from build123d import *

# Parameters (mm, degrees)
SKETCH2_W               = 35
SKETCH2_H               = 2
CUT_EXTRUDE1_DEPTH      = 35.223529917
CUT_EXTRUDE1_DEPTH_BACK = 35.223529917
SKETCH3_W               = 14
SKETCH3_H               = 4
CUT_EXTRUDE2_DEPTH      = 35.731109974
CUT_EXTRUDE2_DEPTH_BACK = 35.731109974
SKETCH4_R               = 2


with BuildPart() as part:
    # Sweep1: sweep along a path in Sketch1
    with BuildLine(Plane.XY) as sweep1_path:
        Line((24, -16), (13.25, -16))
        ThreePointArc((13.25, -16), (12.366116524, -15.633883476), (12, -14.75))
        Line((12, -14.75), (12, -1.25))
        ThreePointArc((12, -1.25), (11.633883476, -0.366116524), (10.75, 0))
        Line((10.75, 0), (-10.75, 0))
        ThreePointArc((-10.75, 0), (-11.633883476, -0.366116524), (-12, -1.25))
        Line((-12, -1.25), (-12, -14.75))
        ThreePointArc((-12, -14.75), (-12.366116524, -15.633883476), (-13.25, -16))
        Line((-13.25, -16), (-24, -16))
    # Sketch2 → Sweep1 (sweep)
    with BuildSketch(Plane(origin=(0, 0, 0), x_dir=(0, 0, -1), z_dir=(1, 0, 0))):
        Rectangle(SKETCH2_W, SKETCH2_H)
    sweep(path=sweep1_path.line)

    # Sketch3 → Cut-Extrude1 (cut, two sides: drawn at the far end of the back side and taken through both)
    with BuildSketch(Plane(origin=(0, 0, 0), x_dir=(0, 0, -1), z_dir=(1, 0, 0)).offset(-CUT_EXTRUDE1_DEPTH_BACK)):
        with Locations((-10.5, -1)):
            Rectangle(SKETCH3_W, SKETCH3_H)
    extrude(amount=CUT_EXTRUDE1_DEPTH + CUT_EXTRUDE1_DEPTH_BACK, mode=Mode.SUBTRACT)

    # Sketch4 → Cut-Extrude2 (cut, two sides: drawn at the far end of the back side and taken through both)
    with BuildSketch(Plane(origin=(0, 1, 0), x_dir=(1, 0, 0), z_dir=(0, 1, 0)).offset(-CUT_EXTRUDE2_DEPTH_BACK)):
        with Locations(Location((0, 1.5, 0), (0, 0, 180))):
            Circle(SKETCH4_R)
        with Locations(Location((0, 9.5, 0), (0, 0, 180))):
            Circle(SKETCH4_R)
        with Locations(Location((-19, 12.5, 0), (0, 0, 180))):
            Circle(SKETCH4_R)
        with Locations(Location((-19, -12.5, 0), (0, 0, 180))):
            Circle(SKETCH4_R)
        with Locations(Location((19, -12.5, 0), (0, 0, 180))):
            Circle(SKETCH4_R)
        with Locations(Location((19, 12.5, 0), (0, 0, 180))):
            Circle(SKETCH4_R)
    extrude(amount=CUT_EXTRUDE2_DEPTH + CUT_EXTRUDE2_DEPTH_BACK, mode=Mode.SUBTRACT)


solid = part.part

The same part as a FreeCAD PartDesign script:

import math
import FreeCAD as App
import Part
import Sketcher
from FreeCAD import Vector
Q = App.Units.Quantity

doc = App.newDocument("Part")
body = doc.addObject("PartDesign::Body", "Body")

sketch1 = body.newObject("Sketcher::SketchObject", "Sketch")
sketch1.AttachmentSupport = (doc.getObject("YZ_Plane"), [""])
sketch1.MapMode = "FlatFace"
sketch1.addGeometry(Part.LineSegment(Vector(1, 17.5, 0), Vector(-1, 17.5, 0)), False)
sketch1.addGeometry(Part.LineSegment(Vector(-1, 17.5, 0), Vector(-1, -17.5, 0)), False)
sketch1.addGeometry(Part.LineSegment(Vector(-1, -17.5, 0), Vector(1, -17.5, 0)), False)
sketch1.addGeometry(Part.LineSegment(Vector(1, -17.5, 0), Vector(1, 17.5, 0)), False)
sketch1.addConstraint(Sketcher.Constraint("Coincident", 0, 2, 1, 1))
sketch1.addConstraint(Sketcher.Constraint("Coincident", 1, 2, 2, 1))
sketch1.addConstraint(Sketcher.Constraint("Coincident", 2, 2, 3, 1))
sketch1.addConstraint(Sketcher.Constraint("Coincident", 3, 2, 0, 1))
sketch1.addConstraint(Sketcher.Constraint("Horizontal", 0))
sketch1.addConstraint(Sketcher.Constraint("Vertical", 1))
sketch1.addConstraint(Sketcher.Constraint("Horizontal", 2))
sketch1.addConstraint(Sketcher.Constraint("Vertical", 3))
sketch1.addConstraint(Sketcher.Constraint("Symmetric", 0, 2, 2, 2, -1, 1))
sketch1.addConstraint(Sketcher.Constraint("DistanceX", 0, 2, 0, 1, Q("2 mm")))
sketch1.addConstraint(Sketcher.Constraint("DistanceY", 1, 2, 1, 1, Q("35 mm")))

sketch2 = body.newObject("Sketcher::SketchObject", "Sketch001")
sketch2.AttachmentSupport = (doc.getObject("XY_Plane"), [""])
sketch2.MapMode = "FlatFace"
sketch2.addGeometry(Part.LineSegment(Vector(24, -16, 0), Vector(13.2, -16, 0)), False)
sketch2.addGeometry(Part.ArcOfCircle(Part.Circle(Vector(13.3, -14.7, 0), Vector(0, 0, 1), 1.3), math.radians(-180), math.radians(-90)), False)
sketch2.addGeometry(Part.LineSegment(Vector(12, -14.8, 0), Vector(12, -1.2, 0)), False)
sketch2.addGeometry(Part.ArcOfCircle(Part.Circle(Vector(10.7, -1.3, 0), Vector(0, 0, 1), 1.3), math.radians(0), math.radians(90)), False)
sketch2.addGeometry(Part.LineSegment(Vector(10.8, 0, 0), Vector(-10.8, 0, 0)), False)
sketch2.addGeometry(Part.ArcOfCircle(Part.Circle(Vector(-10.7, -1.3, 0), Vector(0, 0, 1), 1.3), math.radians(90), math.radians(180)), False)
sketch2.addGeometry(Part.LineSegment(Vector(-12, -1.2, 0), Vector(-12, -14.8, 0)), False)
sketch2.addGeometry(Part.ArcOfCircle(Part.Circle(Vector(-13.3, -14.7, 0), Vector(0, 0, 1), 1.3), math.radians(-90), math.radians(0)), False)
sketch2.addGeometry(Part.LineSegment(Vector(-13.2, -16, 0), Vector(-24, -16, 0)), False)
sketch2.addConstraint(Sketcher.Constraint("Tangent", 0, 2, 1, 2))
sketch2.addConstraint(Sketcher.Constraint("Tangent", 1, 1, 2, 1))
sketch2.addConstraint(Sketcher.Constraint("Tangent", 2, 2, 3, 1))
sketch2.addConstraint(Sketcher.Constraint("Tangent", 3, 2, 4, 1))
sketch2.addConstraint(Sketcher.Constraint("Tangent", 4, 2, 5, 1))
sketch2.addConstraint(Sketcher.Constraint("Tangent", 5, 2, 6, 1))
sketch2.addConstraint(Sketcher.Constraint("Tangent", 6, 2, 7, 2))
sketch2.addConstraint(Sketcher.Constraint("Tangent", 7, 1, 8, 1))
sketch2.addConstraint(Sketcher.Constraint("Horizontal", 0))
sketch2.addConstraint(Sketcher.Constraint("Vertical", 2))
sketch2.addConstraint(Sketcher.Constraint("Horizontal", 4))
sketch2.addConstraint(Sketcher.Constraint("Vertical", 6))
sketch2.addConstraint(Sketcher.Constraint("Horizontal", 8))
sketch2.addConstraint(Sketcher.Constraint("Equal", 1, 3))
sketch2.addConstraint(Sketcher.Constraint("Equal", 3, 5))
sketch2.addConstraint(Sketcher.Constraint("Equal", 5, 7))
sketch2.addConstraint(Sketcher.Constraint("Symmetric", 3, 2, 4, 2, -1, 1))
sketch2.addConstraint(Sketcher.Constraint("Symmetric", 0, 1, 8, 2, -2))
sketch2.addConstraint(Sketcher.Constraint("Radius", 1, Q("1.25 mm")))
sketch2.addConstraint(Sketcher.Constraint("DistanceX", 4, 2, 4, 1, Q("21.5 mm")))
sketch2.addConstraint(Sketcher.Constraint("DistanceY", 2, 1, 2, 2, Q("13.5 mm")))
sketch2.addConstraint(Sketcher.Constraint("DistanceX", -1, 1, 0, 1, Q("24 mm")))
doc.recompute()

additivepipe = body.newObject("PartDesign::AdditivePipe", "AdditivePipe")
additivepipe.Profile = sketch1
additivepipe.Spine = (sketch2, ["Edge1", "Edge2", "Edge3", "Edge4", "Edge5", "Edge6", "Edge7", "Edge8", "Edge9"])

sketch3 = body.newObject("Sketcher::SketchObject", "Sketch002")
sketch3.AttachmentSupport = (doc.getObject("YZ_Plane"), [""])
sketch3.MapMode = "FlatFace"
sketch3.addGeometry(Part.LineSegment(Vector(1, 17.5, 0), Vector(-3, 17.5, 0)), False)
sketch3.addGeometry(Part.LineSegment(Vector(-3, 17.5, 0), Vector(-3, 3.5, 0)), False)
sketch3.addGeometry(Part.LineSegment(Vector(-3, 3.5, 0), Vector(1, 3.5, 0)), False)
sketch3.addGeometry(Part.LineSegment(Vector(1, 3.5, 0), Vector(1, 17.5, 0)), False)
sketch3.addConstraint(Sketcher.Constraint("Coincident", 0, 2, 1, 1))
sketch3.addConstraint(Sketcher.Constraint("Coincident", 1, 2, 2, 1))
sketch3.addConstraint(Sketcher.Constraint("Coincident", 2, 2, 3, 1))
sketch3.addConstraint(Sketcher.Constraint("Coincident", 3, 2, 0, 1))
sketch3.addConstraint(Sketcher.Constraint("Horizontal", 0))
sketch3.addConstraint(Sketcher.Constraint("Vertical", 1))
sketch3.addConstraint(Sketcher.Constraint("Horizontal", 2))
sketch3.addConstraint(Sketcher.Constraint("Vertical", 3))
sketch3.addConstraint(Sketcher.Constraint("DistanceX", 0, 2, 0, 1, Q("4 mm")))
sketch3.addConstraint(Sketcher.Constraint("DistanceY", 1, 2, 1, 1, Q("14 mm")))
sketch3.addConstraint(Sketcher.Constraint("DistanceX", 0, 2, -1, 1, Q("3 mm")))
sketch3.addConstraint(Sketcher.Constraint("DistanceY", -1, 1, 0, 2, Q("17.5 mm")))
pocket1 = body.newObject("PartDesign::Pocket", "Pocket")
pocket1.Profile = sketch3
pocket1.Type = "ThroughAll"
pocket1.Midplane = True

sketch4 = body.newObject("Sketcher::SketchObject", "Sketch003")
sketch4.AttachmentSupport = (doc.getObject("XZ_Plane"), [""])
sketch4.MapMode = "FlatFace"
sketch4.AttachmentOffset = App.Placement(Vector(0, 0, -1), App.Rotation())
sketch4.addGeometry(Part.Circle(Vector(0, -1.5, 0), Vector(0, 0, 1), 2), False)
sketch4.addGeometry(Part.Circle(Vector(0, -9.5, 0), Vector(0, 0, 1), 2), False)
sketch4.addGeometry(Part.Circle(Vector(-19, -12.5, 0), Vector(0, 0, 1), 2), False)
sketch4.addGeometry(Part.Circle(Vector(-19, 12.5, 0), Vector(0, 0, 1), 2), False)
sketch4.addGeometry(Part.Circle(Vector(19, 12.5, 0), Vector(0, 0, 1), 2), False)
sketch4.addGeometry(Part.Circle(Vector(19, -12.5, 0), Vector(0, 0, 1), 2), False)
sketch4.addConstraint(Sketcher.Constraint("Equal", 0, 1))
sketch4.addConstraint(Sketcher.Constraint("Equal", 1, 2))
sketch4.addConstraint(Sketcher.Constraint("Equal", 2, 3))
sketch4.addConstraint(Sketcher.Constraint("Equal", 3, 4))
sketch4.addConstraint(Sketcher.Constraint("Equal", 4, 5))
sketch4.addConstraint(Sketcher.Constraint("Symmetric", 2, 3, 4, 3, -1, 1))
sketch4.addConstraint(Sketcher.Constraint("Symmetric", 3, 3, 5, 3, -1, 1))
sketch4.addConstraint(Sketcher.Constraint("Symmetric", 3, 3, 4, 3, -2))
sketch4.addConstraint(Sketcher.Constraint("PointOnObject", 0, 3, -2))
sketch4.addConstraint(Sketcher.Constraint("PointOnObject", 1, 3, -2))
sketch4.addConstraint(Sketcher.Constraint("Diameter", 0, Q("4 mm")))
sketch4.addConstraint(Sketcher.Constraint("DistanceX", 2, 3, -1, 1, Q("19 mm")))
sketch4.addConstraint(Sketcher.Constraint("DistanceY", 1, 3, 0, 3, Q("8 mm")))
sketch4.addConstraint(Sketcher.Constraint("DistanceY", 2, 3, 1, 3, Q("3 mm")))
sketch4.addConstraint(Sketcher.Constraint("DistanceY", 0, 3, 3, 3, Q("14 mm")))
pocket2 = body.newObject("PartDesign::Pocket", "Pocket001")
pocket2.Profile = sketch4
pocket2.Type = "ThroughAll"
pocket2.Midplane = True

doc.recompute()
